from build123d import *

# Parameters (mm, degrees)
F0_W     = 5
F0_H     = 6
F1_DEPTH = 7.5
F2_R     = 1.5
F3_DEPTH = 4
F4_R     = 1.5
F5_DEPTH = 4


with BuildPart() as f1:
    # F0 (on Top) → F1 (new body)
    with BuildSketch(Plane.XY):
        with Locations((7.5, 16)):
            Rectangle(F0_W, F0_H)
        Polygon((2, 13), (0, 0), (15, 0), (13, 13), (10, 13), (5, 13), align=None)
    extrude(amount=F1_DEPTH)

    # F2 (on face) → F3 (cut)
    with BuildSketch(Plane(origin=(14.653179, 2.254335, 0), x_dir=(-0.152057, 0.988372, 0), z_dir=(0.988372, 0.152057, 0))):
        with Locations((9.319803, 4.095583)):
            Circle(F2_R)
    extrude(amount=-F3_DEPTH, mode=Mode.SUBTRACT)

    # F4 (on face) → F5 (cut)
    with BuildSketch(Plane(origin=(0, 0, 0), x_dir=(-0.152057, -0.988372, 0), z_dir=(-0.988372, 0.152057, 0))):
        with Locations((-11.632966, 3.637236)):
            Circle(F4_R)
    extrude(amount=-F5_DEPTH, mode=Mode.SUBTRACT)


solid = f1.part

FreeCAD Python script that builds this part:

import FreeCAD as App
import Part
import Sketcher
from FreeCAD import Vector


def add_polygon(sketch, points):
    """Adds a closed chain of lines whose ends are joined by coincident constraints."""
    first, n = sketch.GeometryCount, len(points)
    for a, b in zip(points, points[1:] + points[:1]):
        sketch.addGeometry(Part.LineSegment(App.Vector(*a, 0), App.Vector(*b, 0)), False)
    for i in range(n):
        sketch.addConstraint(Sketcher.Constraint("Coincident", first + i, 2, first + (i + 1) % n, 1))

doc = App.newDocument("Part")
body = doc.addObject("PartDesign::Body", "Body")

# Sketch on XY plane
sketch1 = doc.addObject("Sketcher::SketchObject", "Sketch")
body.addObject(sketch1)
sketch1.AttachmentSupport = (doc.XY_Plane, [""])
sketch1.MapMode = "FlatFace"
add_polygon(sketch1, [(5, 19), (5, 13), (2, 13), (0, 0), (15, 0), (13, 13), (10, 13), (10, 19)])  # lines 0-7
sketch1.addConstraint([
    Sketcher.Constraint("Vertical", 0),
    Sketcher.Constraint("Horizontal", 1),
    Sketcher.Constraint("Horizontal", 3),
    Sketcher.Constraint("Horizontal", 5),
    Sketcher.Constraint("Vertical", 6),
    Sketcher.Constraint("Horizontal", 7),
    Sketcher.Constraint("Coincident", 2, 2, -1, 1),
    Sketcher.Constraint("Horizontal", 1, 2, 4, 2),
    Sketcher.Constraint("Equal", 1, 5),
    Sketcher.Constraint("Equal", 2, 4),
    Sketcher.Constraint("DistanceX", 1, 2, 1, 1, 3.0),
    Sketcher.Constraint("DistanceX", 3, 1, 3, 2, 15.0),
    Sketcher.Constraint("DistanceX", 7, 2, 7, 1, 5.0),
    Sketcher.Constraint("DistanceY", 0, 2, 0, 1, 6.0),
    Sketcher.Constraint("DistanceY", -1, 1, 0, 2, 13.0),
])
pad1 = doc.addObject("PartDesign::Pad", "Pad")
body.addObject(pad1)
pad1.Profile = sketch1
pad1.Length = 7.5

# Sketch on an angled plane
sketch2 = doc.addObject("Sketcher::SketchObject", "Sketch001")
body.addObject(sketch2)
sketch2.Placement = App.Placement(Vector(14.653179, 2.254335, 0), App.Rotation(Vector(-0.152056959, 0.988371732, 0), Vector(0, 0, 0.999999999), Vector(0.988371732, 0.152056959, 0), "ZXY"))
sketch2.addGeometry(Part.Circle(Vector(9.3, 4.1, 0), Vector(0, 0, 1), 1.5), False)
sketch2.addConstraint([
    Sketcher.Constraint("Diameter", 0, 3.0),
    Sketcher.Constraint("DistanceX", -1, 1, 0, 3, 9.319803),
    Sketcher.Constraint("DistanceY", -1, 1, 0, 3, 4.095583),
])
pocket1 = doc.addObject("PartDesign::Pocket", "Pocket")
body.addObject(pocket1)
pocket1.Profile = sketch2
pocket1.Length = 4

# Sketch on an angled plane
sketch3 = doc.addObject("Sketcher::SketchObject", "Sketch002")
body.addObject(sketch3)
sketch3.Placement = App.Placement(Vector(0, 0, 0), App.Rotation(Vector(-0.152056959, -0.988371732, 0), Vector(0, 0, 0.999999999), Vector(-0.988371732, 0.152056959, 0), "ZXY"))
sketch3.addGeometry(Part.Circle(Vector(-11.6, 3.6, 0), Vector(0, 0, 1), 1.5), False)
sketch3.addConstraint([
    Sketcher.Constraint("Diameter", 0, 3.0),
    Sketcher.Constraint("DistanceX", 0, 3, -1, 1, 11.632966),
    Sketcher.Constraint("DistanceY", -1, 1, 0, 3, 3.637236),
])
pocket2 = doc.addObject("PartDesign::Pocket", "Pocket001")
body.addObject(pocket2)
pocket2.Profile = sketch3
pocket2.Length = 4

doc.recompute()
